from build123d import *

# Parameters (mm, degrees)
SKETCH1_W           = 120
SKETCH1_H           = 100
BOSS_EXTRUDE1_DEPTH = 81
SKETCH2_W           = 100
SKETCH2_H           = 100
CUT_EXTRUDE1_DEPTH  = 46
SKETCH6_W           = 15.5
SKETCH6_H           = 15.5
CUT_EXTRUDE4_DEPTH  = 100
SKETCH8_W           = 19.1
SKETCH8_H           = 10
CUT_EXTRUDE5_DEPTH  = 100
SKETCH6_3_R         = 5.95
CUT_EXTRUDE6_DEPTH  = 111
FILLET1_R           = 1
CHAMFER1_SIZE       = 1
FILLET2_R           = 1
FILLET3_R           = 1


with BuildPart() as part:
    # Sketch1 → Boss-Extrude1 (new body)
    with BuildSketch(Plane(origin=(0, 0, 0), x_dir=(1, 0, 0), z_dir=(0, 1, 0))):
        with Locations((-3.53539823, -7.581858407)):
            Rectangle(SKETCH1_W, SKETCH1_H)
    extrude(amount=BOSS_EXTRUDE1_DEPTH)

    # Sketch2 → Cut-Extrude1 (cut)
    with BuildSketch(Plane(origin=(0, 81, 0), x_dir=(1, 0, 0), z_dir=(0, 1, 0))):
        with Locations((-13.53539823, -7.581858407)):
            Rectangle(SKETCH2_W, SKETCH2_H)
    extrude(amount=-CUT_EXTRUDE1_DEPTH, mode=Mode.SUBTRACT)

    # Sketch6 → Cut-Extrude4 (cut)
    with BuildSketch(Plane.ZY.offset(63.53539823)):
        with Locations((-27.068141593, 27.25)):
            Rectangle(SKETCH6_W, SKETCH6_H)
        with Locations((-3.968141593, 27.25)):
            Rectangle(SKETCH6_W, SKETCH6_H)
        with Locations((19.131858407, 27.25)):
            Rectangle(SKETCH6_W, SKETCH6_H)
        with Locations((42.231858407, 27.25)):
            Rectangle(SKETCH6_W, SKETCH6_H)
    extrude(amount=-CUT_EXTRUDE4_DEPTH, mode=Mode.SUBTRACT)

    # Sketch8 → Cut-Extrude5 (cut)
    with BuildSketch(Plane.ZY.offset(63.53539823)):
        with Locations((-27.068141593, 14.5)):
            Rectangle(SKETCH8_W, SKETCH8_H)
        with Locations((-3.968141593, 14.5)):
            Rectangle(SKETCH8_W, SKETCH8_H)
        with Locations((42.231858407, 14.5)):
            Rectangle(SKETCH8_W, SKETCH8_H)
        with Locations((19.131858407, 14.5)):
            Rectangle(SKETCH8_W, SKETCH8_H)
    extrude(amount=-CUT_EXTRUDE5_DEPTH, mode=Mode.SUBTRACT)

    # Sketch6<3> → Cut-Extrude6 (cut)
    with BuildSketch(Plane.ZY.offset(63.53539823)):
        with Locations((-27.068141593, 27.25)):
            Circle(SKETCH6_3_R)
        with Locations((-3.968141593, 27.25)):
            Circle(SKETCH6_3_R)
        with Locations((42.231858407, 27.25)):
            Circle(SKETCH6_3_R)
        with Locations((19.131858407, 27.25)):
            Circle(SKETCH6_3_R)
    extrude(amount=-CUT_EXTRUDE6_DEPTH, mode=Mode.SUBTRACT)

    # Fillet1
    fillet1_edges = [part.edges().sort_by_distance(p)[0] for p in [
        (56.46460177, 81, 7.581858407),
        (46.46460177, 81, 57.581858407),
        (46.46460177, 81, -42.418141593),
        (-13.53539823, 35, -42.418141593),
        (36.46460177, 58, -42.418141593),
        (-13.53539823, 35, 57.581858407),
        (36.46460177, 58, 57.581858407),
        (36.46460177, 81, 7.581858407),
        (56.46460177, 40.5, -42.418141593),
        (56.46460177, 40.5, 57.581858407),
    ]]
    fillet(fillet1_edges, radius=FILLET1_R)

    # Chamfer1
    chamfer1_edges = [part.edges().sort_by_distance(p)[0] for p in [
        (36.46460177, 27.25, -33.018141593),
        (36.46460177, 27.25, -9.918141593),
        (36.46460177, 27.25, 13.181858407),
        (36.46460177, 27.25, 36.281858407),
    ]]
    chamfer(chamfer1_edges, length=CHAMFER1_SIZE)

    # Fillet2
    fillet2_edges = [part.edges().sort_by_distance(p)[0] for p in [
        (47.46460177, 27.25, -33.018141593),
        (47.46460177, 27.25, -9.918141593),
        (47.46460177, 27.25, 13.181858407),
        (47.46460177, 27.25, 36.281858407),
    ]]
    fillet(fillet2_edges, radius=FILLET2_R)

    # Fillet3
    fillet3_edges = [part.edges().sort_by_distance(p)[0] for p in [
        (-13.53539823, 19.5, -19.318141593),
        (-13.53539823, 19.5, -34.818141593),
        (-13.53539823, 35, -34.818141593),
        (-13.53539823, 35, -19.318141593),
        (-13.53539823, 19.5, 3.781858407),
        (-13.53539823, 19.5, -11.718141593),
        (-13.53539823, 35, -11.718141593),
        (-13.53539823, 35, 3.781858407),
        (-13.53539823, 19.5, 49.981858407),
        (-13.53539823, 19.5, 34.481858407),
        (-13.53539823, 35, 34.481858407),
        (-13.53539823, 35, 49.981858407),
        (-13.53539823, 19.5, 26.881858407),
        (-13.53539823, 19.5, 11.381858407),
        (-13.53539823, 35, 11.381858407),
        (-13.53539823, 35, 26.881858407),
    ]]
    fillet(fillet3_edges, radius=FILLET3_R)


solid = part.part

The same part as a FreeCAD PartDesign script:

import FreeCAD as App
import Part
import Sketcher
from FreeCAD import Vector
Q = App.Units.Quantity


def edges_at(feature, points):
    """Names of the edges that pass closest to the given points."""
    edges = feature.Shape.Edges
    near = lambda p: min(range(len(edges)), key=lambda i: edges[i].distToShape(Part.Vertex(*p))[0])
    return sorted({f"Edge{near(p) + 1}" for p in points})

doc = App.newDocument("Part")
body = doc.addObject("PartDesign::Body", "Body")

sketch1 = doc.addObject("Sketcher::SketchObject", "Sketch")
body.addObject(sketch1)
sketch1.AttachmentSupport = (doc.XZ_Plane, [""])
sketch1.MapMode = "FlatFace"
sketch1.addGeometry([
    Part.LineSegment(Vector(-63.535398, -42.418142, 0), Vector(-63.535398, 57.581858, 0)),
    Part.LineSegment(Vector(-63.535398, 57.581858, 0), Vector(56.464602, 57.581858, 0)),
    Part.LineSegment(Vector(56.464602, 57.581858, 0), Vector(56.464602, -42.418142, 0)),
    Part.LineSegment(Vector(56.464602, -42.418142, 0), Vector(-63.535398, -42.418142, 0)),
], False)
sketch1.addConstraint([
    Sketcher.Constraint("Coincident", 0, 2, 1, 1),
    Sketcher.Constraint("Coincident", 1, 2, 2, 1),
    Sketcher.Constraint("Coincident", 2, 2, 3, 1),
    Sketcher.Constraint("Coincident", 3, 2, 0, 1),
    Sketcher.Constraint("Vertical", 0),
    Sketcher.Constraint("Horizontal", 1),
    Sketcher.Constraint("Vertical", 2),
    Sketcher.Constraint("Horizontal", 3),
    Sketcher.Constraint("DistanceX", 1, 1, 1, 2, Q("120 mm")),
    Sketcher.Constraint("DistanceY", 0, 1, 0, 2, Q("100 mm")),
    Sketcher.Constraint("DistanceX", 0, 2, -1, 1, Q("63.535398 mm")),
    Sketcher.Constraint("DistanceY", -1, 1, 0, 2, Q("57.581858 mm")),
])
pad1 = doc.addObject("PartDesign::Pad", "Pad")
body.addObject(pad1)
pad1.Profile = sketch1
pad1.Length = 81
pad1.Reversed = True

sketch2 = doc.addObject("Sketcher::SketchObject", "Sketch001")
body.addObject(sketch2)
sketch2.AttachmentSupport = (doc.XZ_Plane, [""])
sketch2.MapMode = "FlatFace"
sketch2.AttachmentOffset = App.Placement(Vector(0, 0, -81), App.Rotation())
sketch2.addGeometry([
    Part.LineSegment(Vector(-63.535398, -42.418142, 0), Vector(-63.535398, 57.581858, 0)),
    Part.LineSegment(Vector(-63.535398, 57.581858, 0), Vector(36.464602, 57.581858, 0)),
    Part.LineSegment(Vector(36.464602, 57.581858, 0), Vector(36.464602, -42.418142, 0)),
    Part.LineSegment(Vector(36.464602, -42.418142, 0), Vector(-63.535398, -42.418142, 0)),
], False)
sketch2.addConstraint([
    Sketcher.Constraint("Coincident", 0, 2, 1, 1),
    Sketcher.Constraint("Coincident", 1, 2, 2, 1),
    Sketcher.Constraint("Coincident", 2, 2, 3, 1),
    Sketcher.Constraint("Coincident", 3, 2, 0, 1),
    Sketcher.Constraint("Vertical", 0),
    Sketcher.Constraint("Horizontal", 1),
    Sketcher.Constraint("Vertical", 2),
    Sketcher.Constraint("Horizontal", 3),
    Sketcher.Constraint("Equal", 3, 0),
    Sketcher.Constraint("DistanceX", 1, 1, 1, 2, Q("100 mm")),
    Sketcher.Constraint("DistanceX", 0, 2, -1, 1, Q("63.535398 mm")),
    Sketcher.Constraint("DistanceY", -1, 1, 0, 2, Q("57.581858 mm")),
])
pocket1 = doc.addObject("PartDesign::Pocket", "Pocket")
body.addObject(pocket1)
pocket1.Profile = sketch2
pocket1.Length = 46
pocket1.Reversed = True

sketch3 = doc.addObject("Sketcher::SketchObject", "Sketch002")
body.addObject(sketch3)
sketch3.AttachmentSupport = (doc.YZ_Plane, [""])
sketch3.MapMode = "FlatFace"
sketch3.AttachmentOffset = App.Placement(Vector(0, 0, -63.535398), App.Rotation())
sketch3.addGeometry([
    Part.LineSegment(Vector(35, -34.818142, 0), Vector(19.5, -34.818142, 0)),
    Part.LineSegment(Vector(19.5, -34.818142, 0), Vector(19.5, -19.318142, 0)),
    Part.LineSegment(Vector(19.5, -19.318142, 0), Vector(35, -19.318142, 0)),
    Part.LineSegment(Vector(35, -19.318142, 0), Vector(35, -34.818142, 0)),
    Part.LineSegment(Vector(35, -11.718142, 0), Vector(19.5, -11.718142, 0)),
    Part.LineSegment(Vector(19.5, -11.718142, 0), Vector(19.5, 3.781858, 0)),
    Part.LineSegment(Vector(19.5, 3.781858, 0), Vector(35, 3.781858, 0)),
    Part.LineSegment(Vector(35, 3.781858, 0), Vector(35, -11.718142, 0)),
    Part.LineSegment(Vector(35, 11.381858, 0), Vector(19.5, 11.381858, 0)),
    Part.LineSegment(Vector(19.5, 11.381858, 0), Vector(19.5, 26.881858, 0)),
    Part.LineSegment(Vector(19.5, 26.881858, 0), Vector(35, 26.881858, 0)),
    Part.LineSegment(Vector(35, 26.881858, 0), Vector(35, 11.381858, 0)),
    Part.LineSegment(Vector(35, 34.481858, 0), Vector(19.5, 34.481858, 0)),
    Part.LineSegment(Vector(19.5, 34.481858, 0), Vector(19.5, 49.981858, 0)),
    Part.LineSegment(Vector(19.5, 49.981858, 0), Vector(35, 49.981858, 0)),
    Part.LineSegment(Vector(35, 49.981858, 0), Vector(35, 34.481858, 0)),
], False)
sketch3.addConstraint([
    Sketcher.Constraint("Coincident", 0, 2, 1, 1),
    Sketcher.Constraint("Coincident", 1, 2, 2, 1),
    Sketcher.Constraint("Coincident", 2, 2, 3, 1),
    Sketcher.Constraint("Coincident", 3, 2, 0, 1),
    Sketcher.Constraint("Coincident", 4, 2, 5, 1),
    Sketcher.Constraint("Coincident", 5, 2, 6, 1),
    Sketcher.Constraint("Coincident", 6, 2, 7, 1),
    Sketcher.Constraint("Coincident", 7, 2, 4, 1),
    Sketcher.Constraint("Coincident", 8, 2, 9, 1),
    Sketcher.Constraint("Coincident", 9, 2, 10, 1),
    Sketcher.Constraint("Coincident", 10, 2, 11, 1),
    Sketcher.Constraint("Coincident", 11, 2, 8, 1),
    Sketcher.Constraint("Coincident", 12, 2, 13, 1),
    Sketcher.Constraint("Coincident", 13, 2, 14, 1),
    Sketcher.Constraint("Coincident", 14, 2, 15, 1),
    Sketcher.Constraint("Coincident", 15, 2, 12, 1),
    Sketcher.Constraint("Horizontal", 0),
    Sketcher.Constraint("Vertical", 1),
    Sketcher.Constraint("Horizontal", 2),
    Sketcher.Constraint("Vertical", 3),
    Sketcher.Constraint("Horizontal", 4),
    Sketcher.Constraint("Vertical", 5),
    Sketcher.Constraint("Horizontal", 6),
    Sketcher.Constraint("Vertical", 7),
    Sketcher.Constraint("Horizontal", 8),
    Sketcher.Constraint("Vertical", 9),
    Sketcher.Constraint("Horizontal", 10),
    Sketcher.Constraint("Vertical", 11),
    Sketcher.Constraint("Horizontal", 12),
    Sketcher.Constraint("Vertical", 13),
    Sketcher.Constraint("Horizontal", 14),
    Sketcher.Constraint("Vertical", 15),
    Sketcher.Constraint("Vertical", 1, 2, 4, 2),
    Sketcher.Constraint("Vertical", 3, 2, 6, 2),
    Sketcher.Constraint("Vertical", 5, 2, 8, 2),
    Sketcher.Constraint("Vertical", 7, 2, 10, 2),
    Sketcher.Constraint("Vertical", 9, 2, 12, 2),
    Sketcher.Constraint("Vertical", 11, 2, 14, 2),
    Sketcher.Constraint("Equal", 14, 1),
    Sketcher.Constraint("Equal", 3, 5),
    Sketcher.Constraint("Equal", 7, 9),
    Sketcher.Constraint("Equal", 11, 13),
    Sketcher.Constraint("DistanceX", 0, 2, 0, 1, Q("15.5 mm")),
    Sketcher.Constraint("DistanceX", -1, 1, 2, 2, Q("35 mm")),
    Sketcher.Constraint("DistanceY", 1, 2, 4, 2, Q("7.6 mm")),
    Sketcher.Constraint("DistanceY", 5, 2, 8, 2, Q("7.6 mm")),
    Sketcher.Constraint("DistanceY", 9, 2, 12, 2, Q("7.6 mm")),
    Sketcher.Constraint("DistanceY", 0, 2, -1, 1, Q("34.818142 mm")),
])
pocket2 = doc.addObject("PartDesign::Pocket", "Pocket001")
body.addObject(pocket2)
pocket2.Profile = sketch3
pocket2.Length = 100
pocket2.Reversed = True

sketch4 = doc.addObject("Sketcher::SketchObject", "Sketch003")
body.addObject(sketch4)
sketch4.AttachmentSupport = (doc.YZ_Plane, [""])
sketch4.MapMode = "FlatFace"
sketch4.AttachmentOffset = App.Placement(Vector(0, 0, -63.535398), App.Rotation())
sketch4.addGeometry([
    Part.LineSegment(Vector(19.5, -36.618142, 0), Vector(9.5, -36.618142, 0)),
    Part.LineSegment(Vector(9.5, -36.618142, 0), Vector(9.5, -17.518142, 0)),
    Part.LineSegment(Vector(9.5, -17.518142, 0), Vector(19.5, -17.518142, 0)),
    Part.LineSegment(Vector(19.5, -17.518142, 0), Vector(19.5, -36.618142, 0)),
    Part.LineSegment(Vector(19.5, -13.518142, 0), Vector(9.5, -13.518142, 0)),
    Part.LineSegment(Vector(9.5, -13.518142, 0), Vector(9.5, 5.581858, 0)),
    Part.LineSegment(Vector(9.5, 5.581858, 0), Vector(19.5, 5.581858, 0)),
    Part.LineSegment(Vector(19.5, 5.581858, 0), Vector(19.5, -13.518142, 0)),
    Part.LineSegment(Vector(19.5, 32.681858, 0), Vector(9.5, 32.681858, 0)),
    Part.LineSegment(Vector(9.5, 32.681858, 0), Vector(9.5, 51.781858, 0)),
    Part.LineSegment(Vector(9.5, 51.781858, 0), Vector(19.5, 51.781858, 0)),
    Part.LineSegment(Vector(19.5, 51.781858, 0), Vector(19.5, 32.681858, 0)),
    Part.LineSegment(Vector(19.5, 9.581858, 0), Vector(9.5, 9.581858, 0)),
    Part.LineSegment(Vector(9.5, 9.581858, 0), Vector(9.5, 28.681858, 0)),
    Part.LineSegment(Vector(9.5, 28.681858, 0), Vector(19.5, 28.681858, 0)),
    Part.LineSegment(Vector(19.5, 28.681858, 0), Vector(19.5, 9.581858, 0)),
], False)
sketch4.addConstraint([
    Sketcher.Constraint("Coincident", 0, 2, 1, 1),
    Sketcher.Constraint("Coincident", 1, 2, 2, 1),
    Sketcher.Constraint("Coincident", 2, 2, 3, 1),
    Sketcher.Constraint("Coincident", 3, 2, 0, 1),
    Sketcher.Constraint("Coincident", 4, 2, 5, 1),
    Sketcher.Constraint("Coincident", 5, 2, 6, 1),
    Sketcher.Constraint("Coincident", 6, 2, 7, 1),
    Sketcher.Constraint("Coincident", 7, 2, 4, 1),
    Sketcher.Constraint("Coincident", 8, 2, 9, 1),
    Sketcher.Constraint("Coincident", 9, 2, 10, 1),
    Sketcher.Constraint("Coincident", 10, 2, 11, 1),
    Sketcher.Constraint("Coincident", 11, 2, 8, 1),
    Sketcher.Constraint("Coincident", 12, 2, 13, 1),
    Sketcher.Constraint("Coincident", 13, 2, 14, 1),
    Sketcher.Constraint("Coincident", 14, 2, 15, 1),
    Sketcher.Constraint("Coincident", 15, 2, 12, 1),
    Sketcher.Constraint("Horizontal", 0),
    Sketcher.Constraint("Vertical", 1),
    Sketcher.Constraint("Horizontal", 2),
    Sketcher.Constraint("Vertical", 3),
    Sketcher.Constraint("Horizontal", 4),
    Sketcher.Constraint("Vertical", 5),
    Sketcher.Constraint("Horizontal", 6),
    Sketcher.Constraint("Vertical", 7),
    Sketcher.Constraint("Horizontal", 8),
    Sketcher.Constraint("Vertical", 9),
    Sketcher.Constraint("Horizontal", 10),
    Sketcher.Constraint("Vertical", 11),
    Sketcher.Constraint("Horizontal", 12),
    Sketcher.Constraint("Vertical", 13),
    Sketcher.Constraint("Horizontal", 14),
    Sketcher.Constraint("Vertical", 15),
    Sketcher.Constraint("Vertical", 1, 2, 4, 2),
    Sketcher.Constraint("Vertical", 3, 2, 6, 2),
    Sketcher.Constraint("Vertical", 5, 2, 8, 2),
    Sketcher.Constraint("Vertical", 7, 2, 10, 2),
    Sketcher.Constraint("Vertical", 9, 2, 12, 2),
    Sketcher.Constraint("Vertical", 11, 2, 14, 2),
    Sketcher.Constraint("Equal", 3, 5),
    Sketcher.Constraint("Equal", 7, 9),
    Sketcher.Constraint("Equal", 11, 13),
    Sketcher.Constraint("DistanceX", 0, 2, 0, 1, Q("10 mm")),
    Sketcher.Constraint("DistanceY", 1, 1, 1, 2, Q("19.1 mm")),
    Sketcher.Constraint("DistanceY", 1, 2, 4, 2, Q("4 mm")),
    Sketcher.Constraint("DistanceY", 5, 2, 12, 2, Q("4 mm")),
    Sketcher.Constraint("DistanceY", 13, 2, 8, 2, Q("4 mm")),
    Sketcher.Constraint("DistanceX", -1, 1, 0, 2, Q("9.5 mm")),
    Sketcher.Constraint("DistanceY", 0, 2, -1, 1, Q("36.618142 mm")),
])
pocket3 = doc.addObject("PartDesign::Pocket", "Pocket002")
body.addObject(pocket3)
pocket3.Profile = sketch4
pocket3.Length = 100
pocket3.Reversed = True

sketch5 = doc.addObject("Sketcher::SketchObject", "Sketch004")
body.addObject(sketch5)
sketch5.AttachmentSupport = (doc.YZ_Plane, [""])
sketch5.MapMode = "FlatFace"
sketch5.AttachmentOffset = App.Placement(Vector(0, 0, -63.535398), App.Rotation())
sketch5.addGeometry([
    Part.Circle(Vector(27.25, -27.068142, 0), Vector(0, 0, 1), 5.95),
    Part.Circle(Vector(27.25, -3.968142, 0), Vector(0, 0, 1), 5.95),
    Part.Circle(Vector(27.25, 42.231858, 0), Vector(0, 0, 1), 5.95),
    Part.Circle(Vector(27.25, 19.131858, 0), Vector(0, 0, 1), 5.95),
], False)
sketch5.addConstraint([
    Sketcher.Constraint("Equal", 0, 1),
    Sketcher.Constraint("Equal", 1, 2),
    Sketcher.Constraint("Equal", 2, 3),
    Sketcher.Constraint("Vertical", 0, 3, 1, 3),
    Sketcher.Constraint("Vertical", 1, 3, 2, 3),
    Sketcher.Constraint("Vertical", 2, 3, 3, 3),
    Sketcher.Constraint("Diameter", 0, Q("11.9 mm")),
    Sketcher.Constraint("DistanceY", 0, 3, 1, 3, Q("23.1 mm")),
    Sketcher.Constraint("DistanceY", 1, 3, 2, 3, Q("46.2 mm")),
    Sketcher.Constraint("DistanceY", 1, 3, 3, 3, Q("23.1 mm")),
    Sketcher.Constraint("DistanceX", -1, 1, 0, 3, Q("27.25 mm")),
    Sketcher.Constraint("DistanceY", 0, 3, -1, 1, Q("27.068142 mm")),
])
pocket4 = doc.addObject("PartDesign::Pocket", "Pocket003")
body.addObject(pocket4)
pocket4.Profile = sketch5
pocket4.Length = 111
pocket4.Reversed = True
doc.recompute()

fillet = doc.addObject("PartDesign::Fillet", "Fillet")
body.addObject(fillet)
fillet.Base = (pocket4, edges_at(pocket4, [
    (56.465, 81, 7.582),
    (46.465, 81, 57.582),
    (46.465, 81, -42.418),
    (-13.535, 35, -42.418),
    (36.465, 58, -42.418),
    (-13.535, 35, 57.582),
    (36.465, 58, 57.582),
    (36.465, 81, 7.582),
    (56.465, 40.5, -42.418),
    (56.465, 40.5, 57.582),
]))
fillet.Radius = 1
doc.recompute()

chamfer = doc.addObject("PartDesign::Chamfer", "Chamfer")
body.addObject(chamfer)
chamfer.Base = (fillet, edges_at(fillet, [
    (36.465, 27.25, -33.018),
    (36.465, 27.25, -9.918),
    (36.465, 27.25, 13.182),
    (36.465, 27.25, 36.282),
]))
chamfer.Size = 1
doc.recompute()

fillet2 = doc.addObject("PartDesign::Fillet", "Fillet001")
body.addObject(fillet2)
fillet2.Base = (chamfer, edges_at(chamfer, [
    (47.465, 27.25, -33.018),
    (47.465, 27.25, -9.918),
    (47.465, 27.25, 13.182),
    (47.465, 27.25, 36.282),
]))
fillet2.Radius = 1
doc.recompute()

fillet3 = doc.addObject("PartDesign::Fillet", "Fillet002")
body.addObject(fillet3)
fillet3.Base = (fillet2, edges_at(fillet2, [
    (-13.535, 19.5, -19.318),
    (-13.535, 19.5, -34.818),
    (-13.535, 35, -34.818),
    (-13.535, 35, -19.318),
    (-13.535, 19.5, 3.782),
    (-13.535, 19.5, -11.718),
    (-13.535, 35, -11.718),
    (-13.535, 35, 3.782),
    (-13.535, 19.5, 49.982),
    (-13.535, 19.5, 34.482),
    (-13.535, 35, 34.482),
    (-13.535, 35, 49.982),
    (-13.535, 19.5, 26.882),
    (-13.535, 19.5, 11.382),
    (-13.535, 35, 11.382),
    (-13.535, 35, 26.882),
]))
fillet3.Radius = 1

doc.recompute()
